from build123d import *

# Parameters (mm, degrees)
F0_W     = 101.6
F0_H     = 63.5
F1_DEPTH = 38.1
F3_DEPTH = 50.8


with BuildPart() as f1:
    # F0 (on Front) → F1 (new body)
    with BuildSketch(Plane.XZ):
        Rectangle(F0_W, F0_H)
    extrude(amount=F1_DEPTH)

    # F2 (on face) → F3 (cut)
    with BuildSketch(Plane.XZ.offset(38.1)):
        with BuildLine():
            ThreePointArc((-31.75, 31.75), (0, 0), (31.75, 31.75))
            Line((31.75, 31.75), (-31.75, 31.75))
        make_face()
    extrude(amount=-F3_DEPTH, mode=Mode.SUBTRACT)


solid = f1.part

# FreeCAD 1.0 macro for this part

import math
import FreeCAD as App
import Part
import Sketcher
Q = App.Units.Quantity


def add_polygon(sketch, points):
    """Adds a closed chain of lines whose ends are joined by coincident constraints."""
    first, n = sketch.GeometryCount, len(points)
    for a, b in zip(points, points[1:] + points[:1]):
        sketch.addGeometry(Part.LineSegment(App.Vector(*a, 0), App.Vector(*b, 0)), False)
    for i in range(n):
        sketch.addConstraint(Sketcher.Constraint("Coincident", first + i, 2, first + (i + 1) % n, 1))

doc = App.newDocument("Part")
body = doc.addObject("PartDesign::Body", "Body")

sketch1 = body.newObject("Sketcher::SketchObject", "Sketch")
sketch1.AttachmentSupport = (doc.getObject("XZ_Plane"), [""])
sketch1.MapMode = "FlatFace"
add_polygon(sketch1, [(-51, 32), (-51, -32), (51, -32), (51, 32)])
sketch1.addConstraint([
    Sketcher.Constraint("Vertical", 0),
    Sketcher.Constraint("Horizontal", 1),
    Sketcher.Constraint("Vertical", 2),
    Sketcher.Constraint("Horizontal", 3),
    Sketcher.Constraint("Symmetric", 0, 2, 2, 2, -1, 1),
    Sketcher.Constraint("DistanceX", 1, 1, 1, 2, Q("4 in")),
    Sketcher.Constraint("DistanceY", 0, 2, 0, 1, Q("2.5 in")),
])
pad1 = body.newObject("PartDesign::Pad", "Pad")
pad1.Profile = sketch1
pad1.Length = Q("1.5 in")

sketch2 = body.newObject("Sketcher::SketchObject", "Sketch001")
sketch2.AttachmentSupport = (doc.getObject("XZ_Plane"), [""])
sketch2.MapMode = "FlatFace"
sketch2.AttachmentOffset = App.Placement(App.Vector(0, 0, 1.5 * 25.4), App.Rotation())
sketch2.addGeometry([
    Part.ArcOfCircle(Part.Circle(App.Vector(0, 32, 0), App.Vector(0, 0, 1), 32), math.radians(180), math.radians(360)),
    Part.LineSegment(App.Vector(32, 32, 0), App.Vector(-32, 32, 0)),
], False)
sketch2.addConstraint([
    Sketcher.Constraint("Coincident", 0, 1, 1, 2),
    Sketcher.Constraint("Coincident", 1, 1, 0, 2),
    Sketcher.Constraint("Horizontal", 1),
    Sketcher.Constraint("PointOnObject", 0, 3, -2),
    Sketcher.Constraint("Radius", 0, Q("1.25 in")),
    Sketcher.Constraint("DistanceY", -1, 1, 0, 3, Q("1.25 in")),
    Sketcher.Constraint("DistanceY", -1, 1, 0, 1, Q("1.25 in")),
])
pocket1 = body.newObject("PartDesign::Pocket", "Pocket")
pocket1.Profile = sketch2
pocket1.Length = Q("2 in")

doc.recompute()
